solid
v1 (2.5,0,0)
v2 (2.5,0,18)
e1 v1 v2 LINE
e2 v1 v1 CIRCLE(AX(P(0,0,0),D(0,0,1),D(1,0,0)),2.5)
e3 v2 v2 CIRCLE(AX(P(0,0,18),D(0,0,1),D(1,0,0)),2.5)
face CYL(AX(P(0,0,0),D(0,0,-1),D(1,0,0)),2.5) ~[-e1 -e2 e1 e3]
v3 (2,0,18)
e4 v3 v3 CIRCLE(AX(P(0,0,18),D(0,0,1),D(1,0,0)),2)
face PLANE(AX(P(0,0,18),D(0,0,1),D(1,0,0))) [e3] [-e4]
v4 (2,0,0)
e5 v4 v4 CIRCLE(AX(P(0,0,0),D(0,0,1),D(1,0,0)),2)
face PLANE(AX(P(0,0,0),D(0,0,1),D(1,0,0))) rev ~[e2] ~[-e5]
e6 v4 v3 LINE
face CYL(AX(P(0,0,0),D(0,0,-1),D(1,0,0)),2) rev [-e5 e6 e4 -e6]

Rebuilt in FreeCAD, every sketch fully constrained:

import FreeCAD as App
import Part
import Sketcher

doc = App.newDocument("Part")
body = doc.addObject("PartDesign::Body", "Body")

# Sketch on XY plane
sketch1 = body.newObject("Sketcher::SketchObject", "Sketch")
sketch1.AttachmentSupport = (doc.getObject("XY_Plane"), [""])
sketch1.MapMode = "FlatFace"
sketch1.addGeometry([
    Part.Circle(App.Vector(0, 0, 0), App.Vector(0, 0, 1), 2.5),
    Part.Circle(App.Vector(0, 0, 0), App.Vector(0, 0, 1), 2),
], False)
sketch1.addConstraint([
    Sketcher.Constraint("Coincident", 0, 3, -1, 1),
    Sketcher.Constraint("Coincident", 1, 3, -1, 1),
    Sketcher.Constraint("Diameter", 0, 5.0),
    Sketcher.Constraint("Diameter", 1, 4.0),
])
pad1 = body.newObject("PartDesign::Pad", "Pad")
pad1.Profile = sketch1
pad1.Length = 18

doc.recompute()
